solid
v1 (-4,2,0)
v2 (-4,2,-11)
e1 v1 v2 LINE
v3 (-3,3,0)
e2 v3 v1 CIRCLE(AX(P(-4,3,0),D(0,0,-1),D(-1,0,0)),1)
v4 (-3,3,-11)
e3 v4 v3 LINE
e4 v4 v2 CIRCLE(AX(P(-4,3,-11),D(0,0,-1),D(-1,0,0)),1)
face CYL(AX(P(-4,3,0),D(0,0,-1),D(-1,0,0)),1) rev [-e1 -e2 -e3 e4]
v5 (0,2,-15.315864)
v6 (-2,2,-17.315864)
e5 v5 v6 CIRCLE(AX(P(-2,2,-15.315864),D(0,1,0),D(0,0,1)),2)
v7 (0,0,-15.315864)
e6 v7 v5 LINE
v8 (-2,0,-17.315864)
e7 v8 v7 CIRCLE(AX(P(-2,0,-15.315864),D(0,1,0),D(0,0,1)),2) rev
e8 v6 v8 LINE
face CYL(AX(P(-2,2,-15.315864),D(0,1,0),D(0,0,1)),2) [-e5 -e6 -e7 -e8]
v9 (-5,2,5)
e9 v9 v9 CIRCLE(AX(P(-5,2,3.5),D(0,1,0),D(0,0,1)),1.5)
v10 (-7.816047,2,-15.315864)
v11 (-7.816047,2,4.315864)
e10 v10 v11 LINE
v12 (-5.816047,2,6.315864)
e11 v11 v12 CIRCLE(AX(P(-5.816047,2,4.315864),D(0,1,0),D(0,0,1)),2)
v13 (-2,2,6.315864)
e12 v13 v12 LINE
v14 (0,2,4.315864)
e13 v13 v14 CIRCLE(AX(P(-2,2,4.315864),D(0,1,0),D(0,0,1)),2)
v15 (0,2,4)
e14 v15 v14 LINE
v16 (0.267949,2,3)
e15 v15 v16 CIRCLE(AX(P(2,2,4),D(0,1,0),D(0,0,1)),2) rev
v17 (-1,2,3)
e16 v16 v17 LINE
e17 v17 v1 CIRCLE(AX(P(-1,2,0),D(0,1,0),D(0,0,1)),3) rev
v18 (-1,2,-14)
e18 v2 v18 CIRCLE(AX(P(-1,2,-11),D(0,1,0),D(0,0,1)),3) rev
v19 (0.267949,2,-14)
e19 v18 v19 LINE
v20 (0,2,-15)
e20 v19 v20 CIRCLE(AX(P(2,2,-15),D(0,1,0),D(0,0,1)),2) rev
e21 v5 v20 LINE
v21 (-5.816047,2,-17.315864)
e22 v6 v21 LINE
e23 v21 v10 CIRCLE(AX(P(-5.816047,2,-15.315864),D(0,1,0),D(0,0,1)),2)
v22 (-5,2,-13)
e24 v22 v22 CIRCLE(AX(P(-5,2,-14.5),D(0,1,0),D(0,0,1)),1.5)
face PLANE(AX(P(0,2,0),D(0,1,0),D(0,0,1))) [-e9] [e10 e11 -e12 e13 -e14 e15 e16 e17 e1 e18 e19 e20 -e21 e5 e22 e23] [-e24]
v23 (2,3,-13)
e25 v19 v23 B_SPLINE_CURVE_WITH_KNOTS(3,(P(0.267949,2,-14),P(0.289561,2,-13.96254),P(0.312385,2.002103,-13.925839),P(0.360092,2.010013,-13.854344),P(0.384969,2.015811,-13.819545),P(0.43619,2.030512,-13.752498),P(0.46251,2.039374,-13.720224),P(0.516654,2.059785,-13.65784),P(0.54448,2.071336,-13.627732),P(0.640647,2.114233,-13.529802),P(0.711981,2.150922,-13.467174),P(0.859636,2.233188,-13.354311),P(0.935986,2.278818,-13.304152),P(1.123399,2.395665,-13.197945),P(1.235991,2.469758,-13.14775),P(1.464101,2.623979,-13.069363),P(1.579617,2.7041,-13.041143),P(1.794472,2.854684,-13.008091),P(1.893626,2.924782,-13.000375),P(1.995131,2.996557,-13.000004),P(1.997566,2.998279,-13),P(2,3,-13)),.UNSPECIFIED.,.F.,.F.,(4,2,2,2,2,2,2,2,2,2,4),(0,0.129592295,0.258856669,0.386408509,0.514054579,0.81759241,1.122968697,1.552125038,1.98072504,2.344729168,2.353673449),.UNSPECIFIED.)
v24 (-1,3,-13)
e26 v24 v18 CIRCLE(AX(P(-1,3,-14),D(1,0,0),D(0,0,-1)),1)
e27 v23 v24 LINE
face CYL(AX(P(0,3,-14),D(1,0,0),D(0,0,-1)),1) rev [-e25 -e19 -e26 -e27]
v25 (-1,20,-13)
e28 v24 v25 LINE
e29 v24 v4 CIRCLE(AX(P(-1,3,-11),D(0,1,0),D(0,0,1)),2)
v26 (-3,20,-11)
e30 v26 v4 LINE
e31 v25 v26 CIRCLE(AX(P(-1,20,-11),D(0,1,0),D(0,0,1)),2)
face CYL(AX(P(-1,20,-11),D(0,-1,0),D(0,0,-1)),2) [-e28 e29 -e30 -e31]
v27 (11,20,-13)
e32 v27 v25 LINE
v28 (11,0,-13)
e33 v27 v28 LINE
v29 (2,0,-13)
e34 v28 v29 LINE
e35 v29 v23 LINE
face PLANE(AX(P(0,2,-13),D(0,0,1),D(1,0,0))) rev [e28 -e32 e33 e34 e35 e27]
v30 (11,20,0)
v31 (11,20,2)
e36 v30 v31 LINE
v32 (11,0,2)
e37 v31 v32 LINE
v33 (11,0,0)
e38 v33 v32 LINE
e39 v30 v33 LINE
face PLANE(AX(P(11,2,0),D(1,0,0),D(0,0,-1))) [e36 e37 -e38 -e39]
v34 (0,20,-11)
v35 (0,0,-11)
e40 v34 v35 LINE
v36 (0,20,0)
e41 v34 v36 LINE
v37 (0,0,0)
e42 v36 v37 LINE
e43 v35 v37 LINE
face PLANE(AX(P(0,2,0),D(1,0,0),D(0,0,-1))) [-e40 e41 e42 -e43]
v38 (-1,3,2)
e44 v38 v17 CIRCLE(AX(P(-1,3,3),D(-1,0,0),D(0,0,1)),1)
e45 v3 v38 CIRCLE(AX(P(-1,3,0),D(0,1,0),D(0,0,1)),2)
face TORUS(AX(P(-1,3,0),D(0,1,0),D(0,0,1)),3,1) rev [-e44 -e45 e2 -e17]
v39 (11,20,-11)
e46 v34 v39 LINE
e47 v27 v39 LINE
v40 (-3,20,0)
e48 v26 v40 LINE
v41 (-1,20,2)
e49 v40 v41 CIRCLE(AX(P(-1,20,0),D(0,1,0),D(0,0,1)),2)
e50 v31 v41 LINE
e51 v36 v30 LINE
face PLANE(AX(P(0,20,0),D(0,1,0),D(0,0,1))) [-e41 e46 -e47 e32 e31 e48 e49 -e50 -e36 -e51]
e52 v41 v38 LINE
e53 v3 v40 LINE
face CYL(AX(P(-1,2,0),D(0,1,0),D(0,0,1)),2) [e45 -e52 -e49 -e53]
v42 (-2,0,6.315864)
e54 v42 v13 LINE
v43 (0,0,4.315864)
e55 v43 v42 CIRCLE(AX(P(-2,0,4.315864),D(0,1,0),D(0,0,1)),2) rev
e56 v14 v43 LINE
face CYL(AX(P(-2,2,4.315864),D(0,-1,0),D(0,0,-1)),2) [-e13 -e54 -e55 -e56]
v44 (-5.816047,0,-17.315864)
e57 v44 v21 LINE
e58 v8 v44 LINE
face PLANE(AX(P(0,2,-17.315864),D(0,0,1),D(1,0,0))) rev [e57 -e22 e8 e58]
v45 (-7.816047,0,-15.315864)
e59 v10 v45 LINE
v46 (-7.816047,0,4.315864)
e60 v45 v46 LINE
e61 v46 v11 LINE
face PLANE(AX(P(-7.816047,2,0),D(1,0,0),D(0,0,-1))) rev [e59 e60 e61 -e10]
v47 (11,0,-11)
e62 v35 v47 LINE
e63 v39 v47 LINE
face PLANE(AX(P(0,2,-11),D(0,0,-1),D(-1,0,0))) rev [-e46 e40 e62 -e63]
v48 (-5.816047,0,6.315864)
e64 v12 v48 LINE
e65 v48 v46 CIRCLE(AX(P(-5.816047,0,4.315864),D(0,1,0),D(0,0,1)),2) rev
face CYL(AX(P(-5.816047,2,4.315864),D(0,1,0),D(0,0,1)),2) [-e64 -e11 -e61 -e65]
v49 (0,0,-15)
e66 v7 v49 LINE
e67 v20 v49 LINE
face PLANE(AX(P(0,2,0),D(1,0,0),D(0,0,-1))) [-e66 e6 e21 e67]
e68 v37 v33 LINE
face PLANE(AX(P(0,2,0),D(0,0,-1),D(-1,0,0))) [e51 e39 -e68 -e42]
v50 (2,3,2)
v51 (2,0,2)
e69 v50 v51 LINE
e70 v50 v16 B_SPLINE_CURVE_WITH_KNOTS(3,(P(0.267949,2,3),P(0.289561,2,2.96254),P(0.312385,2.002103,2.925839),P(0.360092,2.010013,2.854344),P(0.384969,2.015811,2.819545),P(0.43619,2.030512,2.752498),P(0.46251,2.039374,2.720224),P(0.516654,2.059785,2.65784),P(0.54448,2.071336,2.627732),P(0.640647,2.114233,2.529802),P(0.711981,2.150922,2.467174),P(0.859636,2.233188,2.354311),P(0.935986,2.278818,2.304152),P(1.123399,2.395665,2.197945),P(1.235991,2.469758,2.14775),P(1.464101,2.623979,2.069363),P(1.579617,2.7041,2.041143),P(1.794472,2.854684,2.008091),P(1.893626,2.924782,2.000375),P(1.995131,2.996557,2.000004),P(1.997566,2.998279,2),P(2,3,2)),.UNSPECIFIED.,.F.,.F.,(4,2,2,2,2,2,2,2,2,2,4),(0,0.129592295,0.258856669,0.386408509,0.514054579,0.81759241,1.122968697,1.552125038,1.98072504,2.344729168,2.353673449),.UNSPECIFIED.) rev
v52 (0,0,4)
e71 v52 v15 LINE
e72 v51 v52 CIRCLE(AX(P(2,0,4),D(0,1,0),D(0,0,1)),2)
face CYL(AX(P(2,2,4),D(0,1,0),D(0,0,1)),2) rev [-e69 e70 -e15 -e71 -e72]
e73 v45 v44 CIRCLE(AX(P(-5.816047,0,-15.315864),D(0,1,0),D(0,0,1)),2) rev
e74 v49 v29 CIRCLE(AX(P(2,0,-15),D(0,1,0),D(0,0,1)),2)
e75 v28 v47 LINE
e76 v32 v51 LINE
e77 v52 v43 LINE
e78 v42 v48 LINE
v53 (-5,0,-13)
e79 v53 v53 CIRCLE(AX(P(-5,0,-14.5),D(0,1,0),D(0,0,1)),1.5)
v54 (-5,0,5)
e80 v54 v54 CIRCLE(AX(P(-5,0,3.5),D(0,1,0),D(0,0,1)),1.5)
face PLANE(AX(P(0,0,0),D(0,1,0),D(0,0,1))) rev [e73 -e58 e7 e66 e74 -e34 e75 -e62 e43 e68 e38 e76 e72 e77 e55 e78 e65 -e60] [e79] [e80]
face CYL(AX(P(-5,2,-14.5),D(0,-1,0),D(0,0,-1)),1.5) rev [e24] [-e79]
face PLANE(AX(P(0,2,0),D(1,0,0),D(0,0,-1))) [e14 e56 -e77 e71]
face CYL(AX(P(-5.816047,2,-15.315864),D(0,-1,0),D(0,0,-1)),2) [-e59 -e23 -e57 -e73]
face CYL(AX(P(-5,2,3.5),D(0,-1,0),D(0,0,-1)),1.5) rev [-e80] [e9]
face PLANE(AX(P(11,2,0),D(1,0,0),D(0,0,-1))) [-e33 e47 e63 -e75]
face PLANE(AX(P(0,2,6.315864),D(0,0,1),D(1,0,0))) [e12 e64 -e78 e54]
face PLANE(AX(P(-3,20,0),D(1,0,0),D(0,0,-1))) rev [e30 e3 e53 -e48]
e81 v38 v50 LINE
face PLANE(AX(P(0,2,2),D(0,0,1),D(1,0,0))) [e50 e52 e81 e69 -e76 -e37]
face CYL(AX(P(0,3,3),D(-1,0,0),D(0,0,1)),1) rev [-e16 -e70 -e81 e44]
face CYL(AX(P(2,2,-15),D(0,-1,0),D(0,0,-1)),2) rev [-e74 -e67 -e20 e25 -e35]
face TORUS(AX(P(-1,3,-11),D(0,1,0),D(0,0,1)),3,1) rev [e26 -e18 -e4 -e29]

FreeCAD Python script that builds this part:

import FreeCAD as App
import Part
import Sketcher

V = App.Vector


def edges_at(feature, points):
    """Names of the edges that pass closest to the given points."""
    edges = feature.Shape.Edges
    near = lambda p: min(range(len(edges)), key=lambda i: edges[i].distToShape(Part.Vertex(*p))[0])
    return sorted({f"Edge{near(p) + 1}" for p in points})

doc = App.newDocument("Part")
body = doc.addObject("PartDesign::Body", "Body")

# Sketch on XZ plane
sketch1 = body.newObject("Sketcher::SketchObject", "Sketch")
sketch1.AttachmentSupport = (doc.getObject("XZ_Plane"), [""])
sketch1.MapMode = "FlatFace"
sketch1.addGeometry([
    Part.LineSegment(V(0, 6.315864, 0), V(0, 2, 0)),  # 0
    Part.LineSegment(V(0, 2, 0), V(11, 2, 0)),  # 1
    Part.LineSegment(V(11, 2, 0), V(11, 0, 0)),  # 2
    Part.LineSegment(V(11, 0, 0), V(0, 0, 0)),  # 3
    Part.LineSegment(V(0, 0, 0), V(0, -11, 0)),  # 4
    Part.LineSegment(V(0, -11, 0), V(11, -11, 0)),  # 5
    Part.LineSegment(V(11, -11, 0), V(11, -13, 0)),  # 6
    Part.LineSegment(V(11, -13, 0), V(0, -13, 0)),  # 7
    Part.LineSegment(V(0, -13, 0), V(0, -17.315864, 0)),  # 8
    Part.LineSegment(V(0, -17.315864, 0), V(-7.816047, -17.315864, 0)),  # 9
    Part.LineSegment(V(-7.816047, -17.315864, 0), V(-7.816047, 6.315864, 0)),  # 10
    Part.LineSegment(V(-7.816047, 6.315864, 0), V(0, 6.315864, 0)),  # 11
    Part.Circle(V(-5, 3.5, 0), V(0, 0, 1), 1.5),  # 12
    Part.Circle(V(-5, -14.5, 0), V(0, 0, 1), 1.5),  # 13
], False)
sketch1.addConstraint([
    Sketcher.Constraint("Coincident", 0, 2, 1, 1),
    Sketcher.Constraint("Coincident", 1, 2, 2, 1),
    Sketcher.Constraint("Coincident", 2, 2, 3, 1),
    Sketcher.Constraint("Coincident", 3, 2, 4, 1),
    Sketcher.Constraint("Coincident", 4, 2, 5, 1),
    Sketcher.Constraint("Coincident", 5, 2, 6, 1),
    Sketcher.Constraint("Coincident", 6, 2, 7, 1),
    Sketcher.Constraint("Coincident", 7, 2, 8, 1),
    Sketcher.Constraint("Coincident", 8, 2, 9, 1),
    Sketcher.Constraint("Coincident", 9, 2, 10, 1),
    Sketcher.Constraint("Coincident", 10, 2, 11, 1),
    Sketcher.Constraint("Coincident", 11, 2, 0, 1),
    Sketcher.Constraint("Vertical", 0),
    Sketcher.Constraint("Horizontal", 1),
    Sketcher.Constraint("Vertical", 2),
    Sketcher.Constraint("Horizontal", 3),
    Sketcher.Constraint("Vertical", 4),
    Sketcher.Constraint("Horizontal", 5),
    Sketcher.Constraint("Vertical", 6),
    Sketcher.Constraint("Horizontal", 7),
    Sketcher.Constraint("Vertical", 8),
    Sketcher.Constraint("Horizontal", 9),
    Sketcher.Constraint("Vertical", 10),
    Sketcher.Constraint("Horizontal", 11),
    Sketcher.Constraint("Coincident", 3, 2, -1, 1),
    Sketcher.Constraint("Equal", 12, 13),
    Sketcher.Constraint("PointOnObject", 0, 2, -2),
    Sketcher.Constraint("PointOnObject", 7, 2, -2),
    Sketcher.Constraint("Vertical", 12, 3, 13, 3),
    Sketcher.Constraint("Vertical", 2, 2, 5, 2),
    Sketcher.Constraint("Equal", 7, 4),
    Sketcher.Constraint("Equal", 2, 6),
    Sketcher.Constraint("Equal", 0, 8),
    Sketcher.Constraint("Diameter", 12, 3.0),
    Sketcher.Constraint("DistanceX", 1, 1, 1, 2, 11.0),
    Sketcher.Constraint("DistanceY", 2, 2, 2, 1, 2.0),
    Sketcher.Constraint("DistanceX", 12, 3, -1, 1, 5.0),
    Sketcher.Constraint("DistanceY", 13, 3, 12, 3, 18.0),
    Sketcher.Constraint("DistanceY", -1, 1, 12, 3, 3.5),
    Sketcher.Constraint("DistanceX", 9, 2, 9, 1, 7.816047),
    Sketcher.Constraint("DistanceY", 0, 2, 0, 1, 4.315864),
])
pad1 = body.newObject("PartDesign::Pad", "Pad")
pad1.Profile = sketch1
pad1.Length = 2
pad1.Reversed = True

# Sketch on XZ plane
sketch2 = body.newObject("Sketcher::SketchObject", "Sketch001")
sketch2.AttachmentSupport = (doc.getObject("XZ_Plane"), [""])
sketch2.MapMode = "FlatFace"
sketch2.addGeometry([
    Part.LineSegment(V(0, 0, 0), V(0, -11, 0)),  # 0
    Part.LineSegment(V(0, -11, 0), V(11, -11, 0)),  # 1
    Part.LineSegment(V(11, -11, 0), V(11, -13, 0)),  # 2
    Part.LineSegment(V(11, -13, 0), V(-3, -13, 0)),  # 3
    Part.LineSegment(V(-3, -13, 0), V(-3, 2, 0)),  # 4
    Part.LineSegment(V(-3, 2, 0), V(11, 2, 0)),  # 5
    Part.LineSegment(V(11, 2, 0), V(11, 0, 0)),  # 6
    Part.LineSegment(V(11, 0, 0), V(0, 0, 0)),  # 7
], False)
sketch2.addConstraint([
    Sketcher.Constraint("Coincident", 0, 2, 1, 1),
    Sketcher.Constraint("Coincident", 1, 2, 2, 1),
    Sketcher.Constraint("Coincident", 2, 2, 3, 1),
    Sketcher.Constraint("Coincident", 3, 2, 4, 1),
    Sketcher.Constraint("Coincident", 4, 2, 5, 1),
    Sketcher.Constraint("Coincident", 5, 2, 6, 1),
    Sketcher.Constraint("Coincident", 6, 2, 7, 1),
    Sketcher.Constraint("Coincident", 7, 2, 0, 1),
    Sketcher.Constraint("Vertical", 0),
    Sketcher.Constraint("Horizontal", 1),
    Sketcher.Constraint("Vertical", 2),
    Sketcher.Constraint("Horizontal", 3),
    Sketcher.Constraint("Vertical", 4),
    Sketcher.Constraint("Horizontal", 5),
    Sketcher.Constraint("Vertical", 6),
    Sketcher.Constraint("Horizontal", 7),
    Sketcher.Constraint("Coincident", 7, 2, -1, 1),
    Sketcher.Constraint("Vertical", 2, 2, 5, 2),
    Sketcher.Constraint("Equal", 7, 0),
    Sketcher.Constraint("Equal", 2, 6),
    Sketcher.Constraint("DistanceX", 1, 1, 1, 2, 11.0),
    Sketcher.Constraint("DistanceX", 3, 2, 3, 1, 14.0),
    Sketcher.Constraint("DistanceY", 2, 2, 2, 1, 2.0),
])
pad2 = body.newObject("PartDesign::Pad", "Pad001")
pad2.Profile = sketch2
pad2.Length = 20
pad2.Reversed = True
doc.recompute()

fillet = body.newObject("PartDesign::Fillet", "Fillet")
fillet.Base = (pad2, edges_at(pad2, [
    (0, 1, 6.316),
    (-7.816, 1, 6.316),
    (-7.816, 1, -17.316),
    (0, 1, -17.316),
    (0, 1, -13),
    (0, 1, 2),
    (-3, 11, -13),
    (-3, 11, 2),
]))
fillet.Radius = 2
doc.recompute()

fillet2 = body.newObject("PartDesign::Fillet", "Fillet001")
fillet2.Base = (fillet, edges_at(fillet, [
    (0.5, 2, 2),
    (-2.414, 2, 1.414),
    (-2.414, 2, -12.414),
    (-3, 2, -5.5),
    (0.5, 2, -13),
]))
fillet2.Radius = 1

doc.recompute()
